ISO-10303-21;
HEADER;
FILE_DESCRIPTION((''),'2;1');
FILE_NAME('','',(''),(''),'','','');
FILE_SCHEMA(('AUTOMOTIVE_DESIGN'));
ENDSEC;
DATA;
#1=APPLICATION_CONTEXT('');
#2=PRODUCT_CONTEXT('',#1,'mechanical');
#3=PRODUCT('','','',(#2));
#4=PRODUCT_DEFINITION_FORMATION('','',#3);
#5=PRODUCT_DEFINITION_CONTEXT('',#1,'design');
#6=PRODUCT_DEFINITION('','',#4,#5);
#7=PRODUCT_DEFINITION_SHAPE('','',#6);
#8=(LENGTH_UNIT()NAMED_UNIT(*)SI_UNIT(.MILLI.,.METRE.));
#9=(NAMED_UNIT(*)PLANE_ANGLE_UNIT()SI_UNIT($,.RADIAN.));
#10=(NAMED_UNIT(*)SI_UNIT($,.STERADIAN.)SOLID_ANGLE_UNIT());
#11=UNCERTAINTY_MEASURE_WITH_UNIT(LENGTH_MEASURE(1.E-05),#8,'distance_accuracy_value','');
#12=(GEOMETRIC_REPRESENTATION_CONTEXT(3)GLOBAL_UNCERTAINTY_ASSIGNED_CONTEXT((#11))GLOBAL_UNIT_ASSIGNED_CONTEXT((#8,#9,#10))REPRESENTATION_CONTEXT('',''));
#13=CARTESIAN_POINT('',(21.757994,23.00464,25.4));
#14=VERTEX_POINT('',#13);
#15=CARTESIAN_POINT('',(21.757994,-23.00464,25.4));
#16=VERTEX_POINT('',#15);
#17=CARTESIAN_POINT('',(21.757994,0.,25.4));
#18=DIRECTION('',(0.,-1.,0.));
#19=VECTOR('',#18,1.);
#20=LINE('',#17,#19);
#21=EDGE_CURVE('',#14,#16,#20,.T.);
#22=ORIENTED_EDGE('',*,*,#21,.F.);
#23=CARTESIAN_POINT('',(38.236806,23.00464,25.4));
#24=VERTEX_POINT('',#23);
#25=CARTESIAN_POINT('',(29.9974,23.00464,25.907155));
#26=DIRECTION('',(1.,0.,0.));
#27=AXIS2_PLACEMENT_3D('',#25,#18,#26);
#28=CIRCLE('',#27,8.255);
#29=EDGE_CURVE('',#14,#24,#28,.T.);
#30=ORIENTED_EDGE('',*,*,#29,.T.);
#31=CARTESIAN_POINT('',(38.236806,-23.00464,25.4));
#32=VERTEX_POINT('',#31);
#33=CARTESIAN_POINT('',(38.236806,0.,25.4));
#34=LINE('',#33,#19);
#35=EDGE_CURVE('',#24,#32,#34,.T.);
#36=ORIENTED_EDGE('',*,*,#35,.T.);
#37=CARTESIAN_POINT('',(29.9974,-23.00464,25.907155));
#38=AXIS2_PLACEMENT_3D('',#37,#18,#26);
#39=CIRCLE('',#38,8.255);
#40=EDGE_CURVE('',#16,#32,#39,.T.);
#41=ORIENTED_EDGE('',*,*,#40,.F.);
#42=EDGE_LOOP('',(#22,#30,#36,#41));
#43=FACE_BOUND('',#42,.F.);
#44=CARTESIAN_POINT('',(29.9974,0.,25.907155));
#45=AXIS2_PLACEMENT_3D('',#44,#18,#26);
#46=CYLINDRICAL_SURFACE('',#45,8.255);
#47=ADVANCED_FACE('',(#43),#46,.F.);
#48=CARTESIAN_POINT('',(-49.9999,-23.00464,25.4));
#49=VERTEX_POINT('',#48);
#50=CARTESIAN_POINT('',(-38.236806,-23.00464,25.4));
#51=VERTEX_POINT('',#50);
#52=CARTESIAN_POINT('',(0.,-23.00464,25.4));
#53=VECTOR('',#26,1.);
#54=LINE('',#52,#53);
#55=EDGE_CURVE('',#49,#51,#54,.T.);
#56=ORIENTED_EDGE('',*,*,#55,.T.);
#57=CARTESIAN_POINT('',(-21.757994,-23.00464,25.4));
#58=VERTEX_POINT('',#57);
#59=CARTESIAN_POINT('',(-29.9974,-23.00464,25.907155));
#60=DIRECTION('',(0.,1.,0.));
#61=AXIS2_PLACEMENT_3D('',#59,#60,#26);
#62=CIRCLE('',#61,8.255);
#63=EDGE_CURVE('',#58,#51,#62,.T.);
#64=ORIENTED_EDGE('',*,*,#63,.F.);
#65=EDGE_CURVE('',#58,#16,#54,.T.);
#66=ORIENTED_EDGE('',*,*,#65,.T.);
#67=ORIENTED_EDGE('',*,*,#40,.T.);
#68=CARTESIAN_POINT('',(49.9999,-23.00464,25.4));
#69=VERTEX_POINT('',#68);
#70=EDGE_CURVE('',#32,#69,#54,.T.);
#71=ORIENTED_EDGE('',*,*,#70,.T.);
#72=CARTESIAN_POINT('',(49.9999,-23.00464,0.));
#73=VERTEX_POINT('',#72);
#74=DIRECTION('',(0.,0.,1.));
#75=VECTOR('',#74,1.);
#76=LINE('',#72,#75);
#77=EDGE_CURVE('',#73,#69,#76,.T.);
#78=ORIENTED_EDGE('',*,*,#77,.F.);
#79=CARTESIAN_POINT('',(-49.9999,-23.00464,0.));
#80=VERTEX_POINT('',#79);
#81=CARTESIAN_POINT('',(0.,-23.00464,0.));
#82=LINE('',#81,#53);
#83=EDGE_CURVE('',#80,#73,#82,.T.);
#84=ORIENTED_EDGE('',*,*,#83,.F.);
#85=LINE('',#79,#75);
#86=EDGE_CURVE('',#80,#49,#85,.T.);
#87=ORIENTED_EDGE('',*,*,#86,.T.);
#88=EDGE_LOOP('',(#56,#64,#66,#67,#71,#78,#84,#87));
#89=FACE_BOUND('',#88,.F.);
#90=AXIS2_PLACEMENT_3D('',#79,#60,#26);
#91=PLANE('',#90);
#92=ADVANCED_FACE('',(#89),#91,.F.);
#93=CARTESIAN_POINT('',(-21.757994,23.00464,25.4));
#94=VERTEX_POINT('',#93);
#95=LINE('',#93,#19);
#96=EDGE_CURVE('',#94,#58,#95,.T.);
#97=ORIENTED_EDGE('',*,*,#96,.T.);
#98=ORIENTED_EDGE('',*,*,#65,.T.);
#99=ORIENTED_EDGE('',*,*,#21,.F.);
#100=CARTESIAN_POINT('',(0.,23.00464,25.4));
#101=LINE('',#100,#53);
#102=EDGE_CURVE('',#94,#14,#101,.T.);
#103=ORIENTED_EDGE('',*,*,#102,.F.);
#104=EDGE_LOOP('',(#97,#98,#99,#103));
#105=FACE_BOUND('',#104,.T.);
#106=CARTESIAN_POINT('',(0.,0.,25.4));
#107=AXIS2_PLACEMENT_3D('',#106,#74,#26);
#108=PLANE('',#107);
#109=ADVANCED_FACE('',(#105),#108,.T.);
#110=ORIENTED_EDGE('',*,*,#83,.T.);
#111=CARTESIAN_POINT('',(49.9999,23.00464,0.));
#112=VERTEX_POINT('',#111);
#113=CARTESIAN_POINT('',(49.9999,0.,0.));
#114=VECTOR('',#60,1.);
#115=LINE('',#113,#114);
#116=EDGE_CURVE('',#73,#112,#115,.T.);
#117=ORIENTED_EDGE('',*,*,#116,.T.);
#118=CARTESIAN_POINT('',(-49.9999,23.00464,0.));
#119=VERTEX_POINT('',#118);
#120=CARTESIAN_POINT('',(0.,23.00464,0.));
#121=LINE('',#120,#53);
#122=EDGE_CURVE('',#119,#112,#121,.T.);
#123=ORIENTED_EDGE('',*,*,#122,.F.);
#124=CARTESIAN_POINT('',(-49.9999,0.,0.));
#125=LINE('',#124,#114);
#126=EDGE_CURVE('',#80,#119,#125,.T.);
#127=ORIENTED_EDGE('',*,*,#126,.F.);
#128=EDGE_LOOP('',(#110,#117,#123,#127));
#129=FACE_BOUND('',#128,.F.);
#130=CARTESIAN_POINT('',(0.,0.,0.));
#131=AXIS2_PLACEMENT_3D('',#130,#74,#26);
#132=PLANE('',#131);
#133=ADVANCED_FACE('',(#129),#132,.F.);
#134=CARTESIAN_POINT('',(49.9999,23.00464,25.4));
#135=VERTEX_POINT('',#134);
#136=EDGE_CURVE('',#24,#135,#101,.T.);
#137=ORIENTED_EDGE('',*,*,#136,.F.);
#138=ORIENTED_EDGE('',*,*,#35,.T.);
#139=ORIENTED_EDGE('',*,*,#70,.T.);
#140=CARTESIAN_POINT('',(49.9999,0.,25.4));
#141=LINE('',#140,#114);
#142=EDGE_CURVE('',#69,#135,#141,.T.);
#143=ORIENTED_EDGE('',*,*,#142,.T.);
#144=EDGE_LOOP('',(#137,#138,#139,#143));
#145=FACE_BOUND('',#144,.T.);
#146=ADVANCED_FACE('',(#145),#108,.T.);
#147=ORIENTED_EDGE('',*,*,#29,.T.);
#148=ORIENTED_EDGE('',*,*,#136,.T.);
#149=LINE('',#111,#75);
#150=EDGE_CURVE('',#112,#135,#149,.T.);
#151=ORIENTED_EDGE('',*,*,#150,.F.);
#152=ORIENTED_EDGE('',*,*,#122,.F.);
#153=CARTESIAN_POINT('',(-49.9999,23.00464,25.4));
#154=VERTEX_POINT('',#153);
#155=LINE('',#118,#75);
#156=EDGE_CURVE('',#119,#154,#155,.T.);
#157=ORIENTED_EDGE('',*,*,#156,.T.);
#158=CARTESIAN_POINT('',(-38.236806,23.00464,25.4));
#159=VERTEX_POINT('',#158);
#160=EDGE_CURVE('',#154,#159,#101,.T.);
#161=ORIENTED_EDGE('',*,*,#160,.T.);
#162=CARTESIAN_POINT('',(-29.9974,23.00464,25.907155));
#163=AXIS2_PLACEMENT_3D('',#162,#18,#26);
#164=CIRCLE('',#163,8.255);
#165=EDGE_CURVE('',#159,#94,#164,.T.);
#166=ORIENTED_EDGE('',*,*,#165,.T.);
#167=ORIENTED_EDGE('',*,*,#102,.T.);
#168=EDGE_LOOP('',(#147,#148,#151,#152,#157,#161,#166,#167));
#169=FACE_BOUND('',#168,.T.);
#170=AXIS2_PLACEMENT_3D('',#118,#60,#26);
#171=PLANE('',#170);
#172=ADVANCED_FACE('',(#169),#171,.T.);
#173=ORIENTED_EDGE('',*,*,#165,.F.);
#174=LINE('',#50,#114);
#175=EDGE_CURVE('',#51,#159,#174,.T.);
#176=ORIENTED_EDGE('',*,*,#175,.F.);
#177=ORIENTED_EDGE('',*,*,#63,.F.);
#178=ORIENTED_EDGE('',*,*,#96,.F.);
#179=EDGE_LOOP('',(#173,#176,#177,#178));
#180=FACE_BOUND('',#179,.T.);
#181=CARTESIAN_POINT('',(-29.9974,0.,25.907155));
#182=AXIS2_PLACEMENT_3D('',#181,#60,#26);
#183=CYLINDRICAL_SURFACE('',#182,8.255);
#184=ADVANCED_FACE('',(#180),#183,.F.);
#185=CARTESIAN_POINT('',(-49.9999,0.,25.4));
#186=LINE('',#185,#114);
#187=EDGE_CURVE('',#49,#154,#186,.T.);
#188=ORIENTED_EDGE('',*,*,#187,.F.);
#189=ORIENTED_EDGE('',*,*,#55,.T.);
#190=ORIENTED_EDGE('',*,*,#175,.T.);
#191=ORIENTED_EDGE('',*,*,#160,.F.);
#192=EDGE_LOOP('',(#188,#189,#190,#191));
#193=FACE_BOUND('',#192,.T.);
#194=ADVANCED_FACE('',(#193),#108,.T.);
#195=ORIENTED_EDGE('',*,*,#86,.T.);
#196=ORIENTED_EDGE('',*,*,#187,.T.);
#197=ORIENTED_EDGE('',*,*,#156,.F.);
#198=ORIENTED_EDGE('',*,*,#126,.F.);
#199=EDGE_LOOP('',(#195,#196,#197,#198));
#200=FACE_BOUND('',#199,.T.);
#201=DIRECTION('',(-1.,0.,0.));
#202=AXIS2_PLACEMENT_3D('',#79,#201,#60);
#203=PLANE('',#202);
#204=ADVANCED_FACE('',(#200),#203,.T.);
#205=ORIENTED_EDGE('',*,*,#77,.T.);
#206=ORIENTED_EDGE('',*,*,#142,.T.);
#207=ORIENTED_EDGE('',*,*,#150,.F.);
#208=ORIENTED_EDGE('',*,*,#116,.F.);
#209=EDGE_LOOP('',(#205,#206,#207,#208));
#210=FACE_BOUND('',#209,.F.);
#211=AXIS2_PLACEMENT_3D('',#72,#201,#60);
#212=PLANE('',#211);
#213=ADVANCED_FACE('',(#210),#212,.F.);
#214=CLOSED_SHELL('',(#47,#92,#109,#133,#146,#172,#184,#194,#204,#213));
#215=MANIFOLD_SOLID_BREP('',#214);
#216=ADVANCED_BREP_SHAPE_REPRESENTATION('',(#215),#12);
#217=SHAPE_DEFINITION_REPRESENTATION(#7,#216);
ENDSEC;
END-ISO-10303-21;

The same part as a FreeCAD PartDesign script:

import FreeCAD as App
import Part
import Sketcher
from FreeCAD import Vector
Q = App.Units.Quantity

doc = App.newDocument("Part")
body = doc.addObject("PartDesign::Body", "Body")

# Sketch on XY plane
sketch1 = body.newObject("Sketcher::SketchObject", "Sketch")
sketch1.AttachmentSupport = (doc.getObject("XY_Plane"), [""])
sketch1.MapMode = "FlatFace"
sketch1.addGeometry([
    Part.LineSegment(Vector(-49.9999, 23.00464, 0), Vector(-49.9999, -23.00464, 0)),
    Part.LineSegment(Vector(-49.9999, -23.00464, 0), Vector(49.9999, -23.00464, 0)),
    Part.LineSegment(Vector(49.9999, -23.00464, 0), Vector(49.9999, 23.00464, 0)),
    Part.LineSegment(Vector(49.9999, 23.00464, 0), Vector(-49.9999, 23.00464, 0)),
], False)
sketch1.addConstraint([
    Sketcher.Constraint("Coincident", 0, 2, 1, 1),
    Sketcher.Constraint("Coincident", 1, 2, 2, 1),
    Sketcher.Constraint("Coincident", 2, 2, 3, 1),
    Sketcher.Constraint("Coincident", 3, 2, 0, 1),
    Sketcher.Constraint("Vertical", 0),
    Sketcher.Constraint("Horizontal", 1),
    Sketcher.Constraint("Vertical", 2),
    Sketcher.Constraint("Horizontal", 3),
    Sketcher.Constraint("Symmetric", 0, 2, 2, 2, -1, 1),
    Sketcher.Constraint("DistanceX", 1, 1, 1, 2, Q("3.937 in")),
    Sketcher.Constraint("DistanceY", 0, 2, 0, 1, 46.00928),
])
pad1 = body.newObject("PartDesign::Pad", "Pad")
pad1.Profile = sketch1
pad1.Length = Q("1 in")

# Sketch on XZ plane
sketch2 = body.newObject("Sketcher::SketchObject", "Sketch001")
sketch2.AttachmentSupport = (doc.getObject("XZ_Plane"), [""])
sketch2.MapMode = "FlatFace"
sketch2.addGeometry([
    Part.Circle(Vector(-29.9974, 25.907155, 0), Vector(0, 0, 1), 8.255),
    Part.Circle(Vector(29.9974, 25.907155, 0), Vector(0, 0, 1), 8.255),
], False)
sketch2.addConstraint([
    Sketcher.Constraint("Equal", 0, 1),
    Sketcher.Constraint("Symmetric", 0, 3, 1, 3, -2),
    Sketcher.Constraint("Diameter", 0, Q("0.65 in")),
    Sketcher.Constraint("DistanceX", 0, 3, -1, 1, Q("1.181 in")),
    Sketcher.Constraint("DistanceY", -1, 1, 0, 3, 25.907155),
])
pocket1 = body.newObject("PartDesign::Pocket", "Pocket")
pocket1.Profile = sketch2
pocket1.Length = Q("10 in")
pocket1.Midplane = True

doc.recompute()
